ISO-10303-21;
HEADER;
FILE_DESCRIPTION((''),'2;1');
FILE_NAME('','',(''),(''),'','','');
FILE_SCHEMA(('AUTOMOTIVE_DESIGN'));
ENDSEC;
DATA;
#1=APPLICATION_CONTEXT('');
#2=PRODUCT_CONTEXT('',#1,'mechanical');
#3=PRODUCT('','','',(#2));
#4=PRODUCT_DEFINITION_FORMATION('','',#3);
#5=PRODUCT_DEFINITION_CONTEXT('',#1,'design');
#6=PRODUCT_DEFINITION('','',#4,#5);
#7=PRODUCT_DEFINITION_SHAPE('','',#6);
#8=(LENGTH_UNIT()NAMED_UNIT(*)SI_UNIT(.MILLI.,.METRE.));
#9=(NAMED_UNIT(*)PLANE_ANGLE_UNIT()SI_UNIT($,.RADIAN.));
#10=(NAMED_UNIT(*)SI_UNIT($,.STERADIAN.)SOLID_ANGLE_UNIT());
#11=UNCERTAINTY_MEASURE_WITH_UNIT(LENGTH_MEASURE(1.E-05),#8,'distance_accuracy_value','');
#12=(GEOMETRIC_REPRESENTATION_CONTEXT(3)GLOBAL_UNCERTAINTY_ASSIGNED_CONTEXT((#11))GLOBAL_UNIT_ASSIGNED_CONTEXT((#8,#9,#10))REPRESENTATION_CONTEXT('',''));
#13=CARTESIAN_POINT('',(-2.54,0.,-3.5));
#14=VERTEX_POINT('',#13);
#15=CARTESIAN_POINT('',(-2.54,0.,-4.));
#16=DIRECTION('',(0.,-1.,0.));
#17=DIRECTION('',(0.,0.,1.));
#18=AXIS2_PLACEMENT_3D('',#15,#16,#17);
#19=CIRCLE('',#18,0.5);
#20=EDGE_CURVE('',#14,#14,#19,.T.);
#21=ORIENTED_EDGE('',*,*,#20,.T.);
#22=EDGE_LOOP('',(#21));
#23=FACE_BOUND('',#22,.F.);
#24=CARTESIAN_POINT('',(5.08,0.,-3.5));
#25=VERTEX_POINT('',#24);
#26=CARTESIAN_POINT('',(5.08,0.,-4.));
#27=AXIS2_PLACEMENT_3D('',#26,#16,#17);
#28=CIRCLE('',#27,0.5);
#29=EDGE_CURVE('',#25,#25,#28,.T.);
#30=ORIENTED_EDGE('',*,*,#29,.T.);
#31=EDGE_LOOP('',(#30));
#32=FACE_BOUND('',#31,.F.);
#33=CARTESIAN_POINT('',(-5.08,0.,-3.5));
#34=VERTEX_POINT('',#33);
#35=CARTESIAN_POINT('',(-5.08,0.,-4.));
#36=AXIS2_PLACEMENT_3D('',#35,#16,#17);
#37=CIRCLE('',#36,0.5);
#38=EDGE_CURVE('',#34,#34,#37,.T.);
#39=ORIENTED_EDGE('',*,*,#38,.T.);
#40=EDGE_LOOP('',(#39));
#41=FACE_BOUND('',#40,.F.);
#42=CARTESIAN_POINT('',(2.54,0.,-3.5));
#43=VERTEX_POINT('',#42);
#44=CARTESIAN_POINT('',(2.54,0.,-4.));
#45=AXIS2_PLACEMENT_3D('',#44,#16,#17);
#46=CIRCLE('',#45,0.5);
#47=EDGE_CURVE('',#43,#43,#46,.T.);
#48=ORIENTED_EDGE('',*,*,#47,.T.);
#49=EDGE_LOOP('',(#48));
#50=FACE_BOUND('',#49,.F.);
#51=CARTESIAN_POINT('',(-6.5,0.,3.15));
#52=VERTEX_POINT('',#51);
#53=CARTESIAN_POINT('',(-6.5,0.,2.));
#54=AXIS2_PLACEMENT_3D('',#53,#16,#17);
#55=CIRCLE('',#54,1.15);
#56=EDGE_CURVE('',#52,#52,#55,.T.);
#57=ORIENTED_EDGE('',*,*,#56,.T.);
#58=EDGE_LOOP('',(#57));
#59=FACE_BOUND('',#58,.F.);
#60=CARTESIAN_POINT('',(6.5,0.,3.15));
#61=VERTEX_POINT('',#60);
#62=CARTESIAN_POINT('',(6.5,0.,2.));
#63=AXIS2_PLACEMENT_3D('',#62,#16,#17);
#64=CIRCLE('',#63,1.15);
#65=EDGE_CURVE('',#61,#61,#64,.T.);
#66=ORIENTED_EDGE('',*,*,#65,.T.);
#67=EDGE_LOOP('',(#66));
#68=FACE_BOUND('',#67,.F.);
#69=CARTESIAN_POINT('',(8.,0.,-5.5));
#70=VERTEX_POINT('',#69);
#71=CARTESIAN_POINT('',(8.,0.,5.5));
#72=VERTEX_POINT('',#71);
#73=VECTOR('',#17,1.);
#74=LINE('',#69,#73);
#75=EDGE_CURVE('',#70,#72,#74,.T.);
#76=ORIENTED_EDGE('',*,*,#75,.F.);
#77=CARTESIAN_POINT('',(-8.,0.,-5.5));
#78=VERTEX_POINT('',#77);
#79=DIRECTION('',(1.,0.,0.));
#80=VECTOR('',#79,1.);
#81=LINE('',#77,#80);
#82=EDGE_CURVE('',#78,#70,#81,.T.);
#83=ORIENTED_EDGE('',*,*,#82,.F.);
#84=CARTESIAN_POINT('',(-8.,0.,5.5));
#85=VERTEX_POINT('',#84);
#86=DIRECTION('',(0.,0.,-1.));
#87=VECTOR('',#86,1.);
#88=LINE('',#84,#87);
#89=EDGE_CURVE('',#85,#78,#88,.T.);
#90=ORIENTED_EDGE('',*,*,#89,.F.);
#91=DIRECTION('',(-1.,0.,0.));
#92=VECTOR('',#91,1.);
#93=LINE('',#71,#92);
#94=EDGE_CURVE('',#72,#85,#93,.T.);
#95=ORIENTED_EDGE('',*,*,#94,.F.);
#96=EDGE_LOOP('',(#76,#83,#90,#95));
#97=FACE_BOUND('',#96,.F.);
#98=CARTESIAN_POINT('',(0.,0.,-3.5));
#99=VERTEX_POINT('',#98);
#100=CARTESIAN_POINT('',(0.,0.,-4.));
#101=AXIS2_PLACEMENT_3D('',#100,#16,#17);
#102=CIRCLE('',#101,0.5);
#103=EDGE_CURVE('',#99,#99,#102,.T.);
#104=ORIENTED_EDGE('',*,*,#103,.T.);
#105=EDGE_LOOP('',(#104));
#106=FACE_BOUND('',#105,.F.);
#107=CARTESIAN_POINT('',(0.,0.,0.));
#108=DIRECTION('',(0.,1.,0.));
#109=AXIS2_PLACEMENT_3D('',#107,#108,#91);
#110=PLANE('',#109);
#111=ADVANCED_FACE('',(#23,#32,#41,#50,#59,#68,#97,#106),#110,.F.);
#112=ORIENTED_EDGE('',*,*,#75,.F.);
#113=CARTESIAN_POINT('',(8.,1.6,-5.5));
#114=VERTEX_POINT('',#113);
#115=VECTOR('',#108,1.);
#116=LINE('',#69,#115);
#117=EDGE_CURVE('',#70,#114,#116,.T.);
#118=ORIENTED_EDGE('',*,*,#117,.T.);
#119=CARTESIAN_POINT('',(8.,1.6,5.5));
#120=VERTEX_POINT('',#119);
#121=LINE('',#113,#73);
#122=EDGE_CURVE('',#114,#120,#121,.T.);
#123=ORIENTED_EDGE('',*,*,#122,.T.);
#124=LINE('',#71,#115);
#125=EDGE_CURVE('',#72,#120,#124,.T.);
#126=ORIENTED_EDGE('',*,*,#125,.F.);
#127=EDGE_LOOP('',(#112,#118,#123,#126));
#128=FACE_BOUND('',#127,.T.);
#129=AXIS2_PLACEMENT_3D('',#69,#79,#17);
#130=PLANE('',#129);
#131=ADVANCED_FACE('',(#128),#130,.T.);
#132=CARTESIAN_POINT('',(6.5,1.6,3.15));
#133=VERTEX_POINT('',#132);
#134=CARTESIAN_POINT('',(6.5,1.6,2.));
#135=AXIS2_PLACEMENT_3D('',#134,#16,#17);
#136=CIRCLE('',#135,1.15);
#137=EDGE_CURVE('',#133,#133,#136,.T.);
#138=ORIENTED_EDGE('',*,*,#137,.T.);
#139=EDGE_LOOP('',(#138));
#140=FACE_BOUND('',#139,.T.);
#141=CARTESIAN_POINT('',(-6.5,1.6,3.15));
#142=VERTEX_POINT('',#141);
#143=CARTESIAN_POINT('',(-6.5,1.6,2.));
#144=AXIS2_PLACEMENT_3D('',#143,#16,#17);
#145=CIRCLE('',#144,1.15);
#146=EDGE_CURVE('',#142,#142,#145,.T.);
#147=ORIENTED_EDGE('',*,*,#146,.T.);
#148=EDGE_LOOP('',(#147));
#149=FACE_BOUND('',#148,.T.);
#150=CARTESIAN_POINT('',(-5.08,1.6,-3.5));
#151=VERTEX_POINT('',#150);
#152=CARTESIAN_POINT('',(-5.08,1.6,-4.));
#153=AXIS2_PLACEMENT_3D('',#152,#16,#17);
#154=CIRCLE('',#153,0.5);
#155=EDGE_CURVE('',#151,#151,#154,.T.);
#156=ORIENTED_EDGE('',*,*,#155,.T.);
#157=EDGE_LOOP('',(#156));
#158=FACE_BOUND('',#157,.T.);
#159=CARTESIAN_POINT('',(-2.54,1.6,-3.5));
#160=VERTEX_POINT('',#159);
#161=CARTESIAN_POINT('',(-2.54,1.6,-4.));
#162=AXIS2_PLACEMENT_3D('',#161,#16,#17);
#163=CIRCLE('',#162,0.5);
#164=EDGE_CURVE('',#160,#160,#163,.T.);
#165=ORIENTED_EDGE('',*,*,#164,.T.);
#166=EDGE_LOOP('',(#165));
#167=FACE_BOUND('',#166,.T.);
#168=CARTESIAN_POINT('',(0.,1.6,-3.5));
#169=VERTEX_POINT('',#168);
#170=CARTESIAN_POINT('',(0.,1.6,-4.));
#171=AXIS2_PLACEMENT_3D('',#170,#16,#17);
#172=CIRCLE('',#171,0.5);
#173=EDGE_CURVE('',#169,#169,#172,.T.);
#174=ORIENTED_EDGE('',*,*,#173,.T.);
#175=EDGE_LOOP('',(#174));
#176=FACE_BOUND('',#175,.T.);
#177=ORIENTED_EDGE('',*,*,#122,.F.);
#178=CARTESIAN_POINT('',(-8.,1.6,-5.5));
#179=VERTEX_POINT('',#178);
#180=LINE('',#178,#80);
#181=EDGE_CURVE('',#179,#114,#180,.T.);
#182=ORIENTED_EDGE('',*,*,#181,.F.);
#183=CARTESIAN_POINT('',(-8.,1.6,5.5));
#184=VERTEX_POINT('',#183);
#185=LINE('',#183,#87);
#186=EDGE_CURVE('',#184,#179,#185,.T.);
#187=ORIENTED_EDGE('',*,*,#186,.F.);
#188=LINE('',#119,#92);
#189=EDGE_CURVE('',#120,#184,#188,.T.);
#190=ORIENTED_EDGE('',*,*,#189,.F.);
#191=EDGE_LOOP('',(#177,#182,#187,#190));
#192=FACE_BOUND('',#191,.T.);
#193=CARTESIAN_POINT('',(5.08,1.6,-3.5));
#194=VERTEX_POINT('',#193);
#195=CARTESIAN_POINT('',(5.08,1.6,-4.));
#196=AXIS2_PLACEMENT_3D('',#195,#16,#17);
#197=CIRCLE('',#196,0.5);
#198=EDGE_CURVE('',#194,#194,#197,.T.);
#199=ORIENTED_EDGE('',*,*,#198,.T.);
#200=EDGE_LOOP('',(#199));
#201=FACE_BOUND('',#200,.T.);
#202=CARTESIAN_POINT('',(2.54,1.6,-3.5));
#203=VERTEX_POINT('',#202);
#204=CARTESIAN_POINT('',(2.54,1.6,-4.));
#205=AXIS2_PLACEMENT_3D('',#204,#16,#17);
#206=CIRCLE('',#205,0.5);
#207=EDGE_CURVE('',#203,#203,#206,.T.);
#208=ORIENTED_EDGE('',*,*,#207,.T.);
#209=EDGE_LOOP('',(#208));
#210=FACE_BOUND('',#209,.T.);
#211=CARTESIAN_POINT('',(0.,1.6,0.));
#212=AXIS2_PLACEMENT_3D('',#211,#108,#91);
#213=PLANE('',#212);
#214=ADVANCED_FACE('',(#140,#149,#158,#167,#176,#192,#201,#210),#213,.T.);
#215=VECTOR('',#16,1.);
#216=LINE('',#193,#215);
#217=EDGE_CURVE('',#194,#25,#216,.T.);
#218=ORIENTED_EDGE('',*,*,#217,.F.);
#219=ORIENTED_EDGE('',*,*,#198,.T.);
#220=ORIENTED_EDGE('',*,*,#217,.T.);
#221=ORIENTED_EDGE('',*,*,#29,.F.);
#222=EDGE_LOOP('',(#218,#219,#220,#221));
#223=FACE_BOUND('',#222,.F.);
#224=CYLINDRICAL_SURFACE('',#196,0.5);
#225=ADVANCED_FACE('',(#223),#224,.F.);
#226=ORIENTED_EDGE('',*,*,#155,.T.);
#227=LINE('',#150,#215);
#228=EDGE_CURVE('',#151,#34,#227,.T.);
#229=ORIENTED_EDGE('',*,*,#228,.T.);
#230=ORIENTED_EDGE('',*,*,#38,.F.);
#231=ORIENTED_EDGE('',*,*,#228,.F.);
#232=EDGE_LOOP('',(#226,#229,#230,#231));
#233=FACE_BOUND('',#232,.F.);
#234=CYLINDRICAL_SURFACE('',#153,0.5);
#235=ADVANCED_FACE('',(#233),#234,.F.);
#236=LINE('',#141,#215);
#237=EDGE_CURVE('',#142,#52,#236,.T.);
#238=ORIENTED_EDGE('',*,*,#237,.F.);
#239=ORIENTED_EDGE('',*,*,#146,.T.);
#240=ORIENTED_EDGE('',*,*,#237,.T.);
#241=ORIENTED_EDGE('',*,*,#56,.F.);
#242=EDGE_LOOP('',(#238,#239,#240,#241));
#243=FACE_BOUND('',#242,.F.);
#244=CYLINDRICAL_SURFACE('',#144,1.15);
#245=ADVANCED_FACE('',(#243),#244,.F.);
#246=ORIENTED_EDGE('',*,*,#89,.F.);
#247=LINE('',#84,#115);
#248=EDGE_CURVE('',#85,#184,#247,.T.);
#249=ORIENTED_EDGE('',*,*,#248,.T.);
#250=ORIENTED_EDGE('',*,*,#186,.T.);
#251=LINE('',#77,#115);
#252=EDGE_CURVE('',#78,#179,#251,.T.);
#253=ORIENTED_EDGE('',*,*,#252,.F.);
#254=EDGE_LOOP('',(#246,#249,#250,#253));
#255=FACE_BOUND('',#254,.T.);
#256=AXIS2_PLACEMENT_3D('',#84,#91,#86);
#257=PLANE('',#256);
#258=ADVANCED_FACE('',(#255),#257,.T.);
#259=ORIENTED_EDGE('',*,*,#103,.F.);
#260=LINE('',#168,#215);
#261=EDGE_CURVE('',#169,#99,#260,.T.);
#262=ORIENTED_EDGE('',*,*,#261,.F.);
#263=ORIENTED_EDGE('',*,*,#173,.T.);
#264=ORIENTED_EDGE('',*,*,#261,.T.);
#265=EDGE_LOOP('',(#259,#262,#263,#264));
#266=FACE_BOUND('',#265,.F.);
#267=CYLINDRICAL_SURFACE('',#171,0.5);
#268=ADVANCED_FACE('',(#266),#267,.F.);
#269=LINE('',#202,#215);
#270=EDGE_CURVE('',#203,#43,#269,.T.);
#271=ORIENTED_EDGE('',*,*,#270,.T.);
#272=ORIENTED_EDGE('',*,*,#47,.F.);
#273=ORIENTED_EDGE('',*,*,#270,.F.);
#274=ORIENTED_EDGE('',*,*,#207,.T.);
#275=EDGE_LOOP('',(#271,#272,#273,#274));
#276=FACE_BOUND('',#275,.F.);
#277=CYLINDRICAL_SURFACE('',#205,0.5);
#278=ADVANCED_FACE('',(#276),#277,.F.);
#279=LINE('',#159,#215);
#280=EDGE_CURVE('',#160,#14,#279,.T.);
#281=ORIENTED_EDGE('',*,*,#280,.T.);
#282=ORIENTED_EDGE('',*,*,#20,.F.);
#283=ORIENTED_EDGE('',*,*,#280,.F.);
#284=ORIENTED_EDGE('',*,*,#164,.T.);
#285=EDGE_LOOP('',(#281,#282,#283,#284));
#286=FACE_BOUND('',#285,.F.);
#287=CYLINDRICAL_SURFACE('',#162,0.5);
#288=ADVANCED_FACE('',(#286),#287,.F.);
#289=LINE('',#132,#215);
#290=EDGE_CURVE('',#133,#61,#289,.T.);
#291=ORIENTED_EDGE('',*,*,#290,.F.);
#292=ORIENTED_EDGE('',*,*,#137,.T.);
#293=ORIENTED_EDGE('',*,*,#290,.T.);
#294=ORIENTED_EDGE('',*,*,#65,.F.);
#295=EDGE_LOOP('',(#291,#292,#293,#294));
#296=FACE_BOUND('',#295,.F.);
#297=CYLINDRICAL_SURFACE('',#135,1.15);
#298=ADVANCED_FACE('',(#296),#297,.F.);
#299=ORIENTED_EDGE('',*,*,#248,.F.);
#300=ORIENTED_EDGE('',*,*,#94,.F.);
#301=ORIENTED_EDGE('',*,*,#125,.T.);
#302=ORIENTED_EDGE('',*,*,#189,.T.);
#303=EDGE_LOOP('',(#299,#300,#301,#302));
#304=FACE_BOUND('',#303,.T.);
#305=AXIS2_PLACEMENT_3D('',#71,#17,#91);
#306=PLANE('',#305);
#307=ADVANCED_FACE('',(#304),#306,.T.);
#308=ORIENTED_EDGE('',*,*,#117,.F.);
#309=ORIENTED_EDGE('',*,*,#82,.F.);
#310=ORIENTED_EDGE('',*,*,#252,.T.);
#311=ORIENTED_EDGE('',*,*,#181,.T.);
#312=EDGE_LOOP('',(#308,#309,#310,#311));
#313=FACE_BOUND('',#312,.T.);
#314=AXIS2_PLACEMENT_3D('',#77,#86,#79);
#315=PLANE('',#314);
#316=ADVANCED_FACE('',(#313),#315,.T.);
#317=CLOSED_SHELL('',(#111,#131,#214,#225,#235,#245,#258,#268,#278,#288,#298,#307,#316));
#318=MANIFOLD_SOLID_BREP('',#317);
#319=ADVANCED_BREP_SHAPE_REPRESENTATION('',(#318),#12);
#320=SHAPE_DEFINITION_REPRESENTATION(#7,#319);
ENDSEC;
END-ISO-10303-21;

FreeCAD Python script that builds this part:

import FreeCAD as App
import Part
import Sketcher
from FreeCAD import Vector


def add_polygon(sketch, points):
    """Adds a closed chain of lines whose ends are joined by coincident constraints."""
    first, n = sketch.GeometryCount, len(points)
    for a, b in zip(points, points[1:] + points[:1]):
        sketch.addGeometry(Part.LineSegment(App.Vector(*a, 0), App.Vector(*b, 0)), False)
    for i in range(n):
        sketch.addConstraint(Sketcher.Constraint("Coincident", first + i, 2, first + (i + 1) % n, 1))

doc = App.newDocument("Part")
body = doc.addObject("PartDesign::Body", "Body")

# Sketch on XZ plane
sketch1 = body.newObject("Sketcher::SketchObject", "Sketch")
sketch1.AttachmentSupport = (doc.getObject("XZ_Plane"), [""])
sketch1.MapMode = "FlatFace"
add_polygon(sketch1, [(-8, 6), (8, 6), (8, -6), (-8, -6)])  # lines 0-3
sketch1.addConstraint([
    Sketcher.Constraint("Horizontal", 0),
    Sketcher.Constraint("Vertical", 1),
    Sketcher.Constraint("Horizontal", 2),
    Sketcher.Constraint("Vertical", 3),
    Sketcher.Constraint("Symmetric", 0, 2, 2, 2, -1, 1),
    Sketcher.Constraint("DistanceX", 0, 1, 0, 2, 16.0),
    Sketcher.Constraint("DistanceY", 1, 2, 1, 1, 11.0),
])
pad1 = body.newObject("PartDesign::Pad", "Pad")
pad1.Profile = sketch1
pad1.Length = 1.6
pad1.Reversed = True

# Sketch on XZ plane
sketch2 = body.newObject("Sketcher::SketchObject", "Sketch001")
sketch2.AttachmentSupport = (doc.getObject("XZ_Plane"), [""])
sketch2.MapMode = "FlatFace"
sketch2.AttachmentOffset = App.Placement(Vector(0, 0, -1.6), App.Rotation())
sketch2.addGeometry([
    Part.Circle(Vector(-6.5, 2, 0), Vector(0, 0, 1), 1.1),
    Part.Circle(Vector(6.5, 2, 0), Vector(0, 0, 1), 1.1),
], False)
sketch2.addConstraint([
    Sketcher.Constraint("Equal", 0, 1),
    Sketcher.Constraint("Symmetric", 0, 3, 1, 3, -2),
    Sketcher.Constraint("Diameter", 0, 2.3),
    Sketcher.Constraint("DistanceY", -1, 1, 0, 3, 2.0),
    Sketcher.Constraint("DistanceX", 0, 3, 1, 3, 13.0),
])
doc.recompute()
hole = body.newObject("PartDesign::Hole", "Hole")
hole.Profile = sketch2
hole.ThreadType = "None"
hole.Diameter = 2.3
hole.DepthType = "ThroughAll"
hole.Reversed = True

# Sketch on XZ plane
sketch3 = body.newObject("Sketcher::SketchObject", "Sketch002")
sketch3.AttachmentSupport = (doc.getObject("XZ_Plane"), [""])
sketch3.MapMode = "FlatFace"
sketch3.AttachmentOffset = App.Placement(Vector(0, 0, -1.6), App.Rotation())
sketch3.addGeometry([
    Part.Circle(Vector(0, -4, 0), Vector(0, 0, 1), 0.5),  # 0
    Part.Circle(Vector(-2.5, -4, 0), Vector(0, 0, 1), 0.5),  # 1
    Part.Circle(Vector(-5.1, -4, 0), Vector(0, 0, 1), 0.5),  # 2
    Part.Circle(Vector(2.5, -4, 0), Vector(0, 0, 1), 0.5),  # 3
    Part.Circle(Vector(5.1, -4, 0), Vector(0, 0, 1), 0.5),  # 4
], False)
sketch3.addConstraint([
    Sketcher.Constraint("Equal", 0, 1),
    Sketcher.Constraint("Equal", 1, 2),
    Sketcher.Constraint("Equal", 2, 3),
    Sketcher.Constraint("Equal", 3, 4),
    Sketcher.Constraint("Symmetric", 1, 3, 3, 3, -2),
    Sketcher.Constraint("Symmetric", 2, 3, 4, 3, -2),
    Sketcher.Constraint("PointOnObject", 0, 3, -2),
    Sketcher.Constraint("Horizontal", 0, 3, 1, 3),
    Sketcher.Constraint("Horizontal", 1, 3, 2, 3),
    Sketcher.Constraint("Diameter", 0, 1.0),
    Sketcher.Constraint("DistanceY", 0, 3, -1, 1, 4.0),
    Sketcher.Constraint("DistanceX", 1, 3, -1, 1, 2.54),
    Sketcher.Constraint("DistanceX", 2, 3, -1, 1, 5.08),
])
doc.recompute()
hole2 = body.newObject("PartDesign::Hole", "Hole001")
hole2.Profile = sketch3
hole2.ThreadType = "None"
hole2.Diameter = 1
hole2.DepthType = "ThroughAll"
hole2.Reversed = True

doc.recompute()
